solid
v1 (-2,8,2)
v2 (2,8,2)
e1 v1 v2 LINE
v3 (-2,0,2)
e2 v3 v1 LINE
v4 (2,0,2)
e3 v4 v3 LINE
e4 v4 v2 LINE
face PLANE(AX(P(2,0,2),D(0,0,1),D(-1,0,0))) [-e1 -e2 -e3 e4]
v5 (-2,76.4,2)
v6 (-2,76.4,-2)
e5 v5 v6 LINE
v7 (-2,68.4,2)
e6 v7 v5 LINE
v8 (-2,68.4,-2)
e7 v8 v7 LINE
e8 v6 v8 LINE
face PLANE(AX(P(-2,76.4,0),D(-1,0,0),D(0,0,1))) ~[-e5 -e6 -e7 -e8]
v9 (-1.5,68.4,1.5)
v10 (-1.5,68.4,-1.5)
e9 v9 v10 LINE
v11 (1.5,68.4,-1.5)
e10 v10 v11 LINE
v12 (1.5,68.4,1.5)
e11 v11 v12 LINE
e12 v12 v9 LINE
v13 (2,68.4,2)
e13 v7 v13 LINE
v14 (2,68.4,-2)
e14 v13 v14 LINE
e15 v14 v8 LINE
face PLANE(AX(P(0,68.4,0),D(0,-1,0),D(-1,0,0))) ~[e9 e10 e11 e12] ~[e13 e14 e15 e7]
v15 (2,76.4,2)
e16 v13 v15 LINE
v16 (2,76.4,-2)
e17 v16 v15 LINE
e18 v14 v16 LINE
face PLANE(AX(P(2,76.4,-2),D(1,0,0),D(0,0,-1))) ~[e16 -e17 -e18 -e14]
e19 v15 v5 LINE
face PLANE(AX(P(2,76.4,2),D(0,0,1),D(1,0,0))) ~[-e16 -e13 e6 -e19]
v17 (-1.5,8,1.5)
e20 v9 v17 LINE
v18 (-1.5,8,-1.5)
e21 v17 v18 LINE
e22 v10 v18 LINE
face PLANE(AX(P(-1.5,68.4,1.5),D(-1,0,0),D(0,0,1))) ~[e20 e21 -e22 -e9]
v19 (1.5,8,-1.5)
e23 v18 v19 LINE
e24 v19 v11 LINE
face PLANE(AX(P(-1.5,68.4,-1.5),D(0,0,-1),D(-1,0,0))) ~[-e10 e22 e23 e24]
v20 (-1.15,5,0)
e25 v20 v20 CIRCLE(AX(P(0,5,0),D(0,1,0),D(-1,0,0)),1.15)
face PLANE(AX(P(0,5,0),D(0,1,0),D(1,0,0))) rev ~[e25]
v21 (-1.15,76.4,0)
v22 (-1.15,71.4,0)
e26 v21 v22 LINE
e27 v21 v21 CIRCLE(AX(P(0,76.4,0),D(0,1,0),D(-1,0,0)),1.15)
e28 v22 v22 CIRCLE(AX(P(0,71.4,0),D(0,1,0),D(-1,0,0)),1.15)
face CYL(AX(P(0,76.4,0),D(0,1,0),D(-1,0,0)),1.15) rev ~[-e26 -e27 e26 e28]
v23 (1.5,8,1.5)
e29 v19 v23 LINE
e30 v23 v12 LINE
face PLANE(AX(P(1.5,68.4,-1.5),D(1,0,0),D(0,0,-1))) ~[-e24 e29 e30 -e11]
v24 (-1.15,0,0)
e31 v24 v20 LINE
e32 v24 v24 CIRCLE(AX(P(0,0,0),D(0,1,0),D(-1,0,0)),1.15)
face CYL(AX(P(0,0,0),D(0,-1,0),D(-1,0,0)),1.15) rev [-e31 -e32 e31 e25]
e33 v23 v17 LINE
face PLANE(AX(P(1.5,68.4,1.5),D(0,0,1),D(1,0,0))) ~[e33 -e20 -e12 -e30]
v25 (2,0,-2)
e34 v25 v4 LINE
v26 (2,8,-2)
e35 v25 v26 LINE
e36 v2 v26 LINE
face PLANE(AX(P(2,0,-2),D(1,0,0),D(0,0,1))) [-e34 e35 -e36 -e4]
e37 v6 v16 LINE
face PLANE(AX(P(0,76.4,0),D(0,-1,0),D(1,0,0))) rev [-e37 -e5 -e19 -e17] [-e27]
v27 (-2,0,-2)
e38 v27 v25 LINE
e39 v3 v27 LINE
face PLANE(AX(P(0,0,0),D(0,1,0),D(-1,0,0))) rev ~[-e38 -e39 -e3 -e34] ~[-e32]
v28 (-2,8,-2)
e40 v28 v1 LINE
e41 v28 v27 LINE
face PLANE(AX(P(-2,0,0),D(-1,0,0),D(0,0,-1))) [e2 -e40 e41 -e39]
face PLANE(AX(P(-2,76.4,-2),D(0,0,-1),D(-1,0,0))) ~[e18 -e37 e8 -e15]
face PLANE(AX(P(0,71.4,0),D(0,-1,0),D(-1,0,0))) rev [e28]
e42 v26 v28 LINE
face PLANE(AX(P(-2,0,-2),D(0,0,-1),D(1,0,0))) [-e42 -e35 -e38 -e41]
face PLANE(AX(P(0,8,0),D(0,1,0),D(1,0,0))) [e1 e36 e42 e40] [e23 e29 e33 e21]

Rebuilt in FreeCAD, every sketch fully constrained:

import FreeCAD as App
import Part
import Sketcher


def add_polygon(sketch, points):
    """Adds a closed chain of lines whose ends are joined by coincident constraints."""
    first, n = sketch.GeometryCount, len(points)
    for a, b in zip(points, points[1:] + points[:1]):
        sketch.addGeometry(Part.LineSegment(App.Vector(*a, 0), App.Vector(*b, 0)), False)
    for i in range(n):
        sketch.addConstraint(Sketcher.Constraint("Coincident", first + i, 2, first + (i + 1) % n, 1))

doc = App.newDocument("Part")
params = doc.addObject("Spreadsheet::Sheet", "Params")
for row, (alias, value) in enumerate([
    ("sketch1_diameter", "2.3 mm"),
    ("sketch1_width", "4 mm"),
    ("pad1_length", "5 mm"),
    ("sketch2_width", "4 mm"),
    ("pad2_length", "3 mm"),
    ("sketch3_width", "3 mm"),
    ("pad3_length", "44.25 mm"),
], start=1):
    params.set(f"A{row}", alias)
    params.set(f"B{row}", "=" + value)
    params.setAlias(f"B{row}", alias)

body = doc.addObject("PartDesign::Body", "Body")

sketch1 = body.newObject("Sketcher::SketchObject", "Sketch")
sketch1.AttachmentSupport = (doc.getObject("XZ_Plane"), [""])
sketch1.MapMode = "FlatFace"
add_polygon(sketch1, [(-2, -2), (-2, 2), (2, 2), (2, -2)])
sketch1.addGeometry(Part.Circle(App.Vector(0, 0, 0), App.Vector(0, 0, 1), 1.15), False)
sketch1.addConstraint(Sketcher.Constraint("Vertical", 0))
sketch1.addConstraint(Sketcher.Constraint("Horizontal", 1))
sketch1.addConstraint(Sketcher.Constraint("Vertical", 2))
sketch1.addConstraint(Sketcher.Constraint("Horizontal", 3))
sketch1.addConstraint(Sketcher.Constraint("Coincident", 4, 3, -1, 1))
sketch1.addConstraint(Sketcher.Constraint("Symmetric", 0, 2, 2, 2, -1, 1))
sketch1.addConstraint(Sketcher.Constraint("Equal", 3, 0))
sketch1.addConstraint(Sketcher.Constraint("Diameter", 4, 2.3))
sketch1.addConstraint(Sketcher.Constraint("DistanceX", 1, 1, 1, 2, 4.0))
sketch1.setExpression("Constraints[11]", "Params.sketch1_diameter")
sketch1.setExpression("Constraints[12]", "Params.sketch1_width")
pad1 = body.newObject("PartDesign::Pad", "Pad")
pad1.Profile = sketch1
pad1.setExpression("Length", "Params.pad1_length")
pad1.Reversed = True

sketch2 = body.newObject("Sketcher::SketchObject", "Sketch001")
sketch2.AttachmentSupport = (doc.getObject("XZ_Plane"), [""])
sketch2.MapMode = "FlatFace"
sketch2.AttachmentOffset = App.Placement(App.Vector(0, 0, -5), App.Rotation())
add_polygon(sketch2, [(2, 2), (2, -2), (-2, -2), (-2, 2)])
sketch2.addConstraint(Sketcher.Constraint("Vertical", 0))
sketch2.addConstraint(Sketcher.Constraint("Horizontal", 1))
sketch2.addConstraint(Sketcher.Constraint("Vertical", 2))
sketch2.addConstraint(Sketcher.Constraint("Horizontal", 3))
sketch2.addConstraint(Sketcher.Constraint("Symmetric", 0, 2, 2, 2, -1, 1))
sketch2.addConstraint(Sketcher.Constraint("Equal", 3, 0))
sketch2.addConstraint(Sketcher.Constraint("DistanceX", 1, 2, 1, 1, 4.0))
sketch2.setExpression("Constraints[10]", "Params.sketch2_width")
pad2 = body.newObject("PartDesign::Pad", "Pad001")
pad2.Profile = sketch2
pad2.setExpression("Length", "Params.pad2_length")
pad2.Reversed = True

sketch3 = body.newObject("Sketcher::SketchObject", "Sketch002")
sketch3.AttachmentSupport = (doc.getObject("XZ_Plane"), [""])
sketch3.MapMode = "FlatFace"
sketch3.AttachmentOffset = App.Placement(App.Vector(0, 0, -8), App.Rotation())
add_polygon(sketch3, [(-1.5, 1.5), (1.5, 1.5), (1.5, -1.5), (-1.5, -1.5)])
sketch3.addConstraint(Sketcher.Constraint("Horizontal", 0))
sketch3.addConstraint(Sketcher.Constraint("Vertical", 1))
sketch3.addConstraint(Sketcher.Constraint("Horizontal", 2))
sketch3.addConstraint(Sketcher.Constraint("Vertical", 3))
sketch3.addConstraint(Sketcher.Constraint("Symmetric", 0, 2, 2, 2, -1, 1))
sketch3.addConstraint(Sketcher.Constraint("Equal", 2, 1))
sketch3.addConstraint(Sketcher.Constraint("DistanceX", 0, 1, 0, 2, 3.0))
sketch3.setExpression("Constraints[10]", "Params.sketch3_width")
pad3 = body.newObject("PartDesign::Pad", "Pad002")
pad3.Profile = sketch3
pad3.setExpression("Length", "Params.pad3_length")
pad3.Reversed = True
doc.recompute()

datumplane = body.newObject("PartDesign::Plane", "DatumPlane")
datumplane.AttachmentSupport = (doc.getObject("XZ_Plane"), [""])
datumplane.MapMode = "FlatFace"
datumplane.AttachmentOffset = App.Placement(App.Vector(0, 0, -38.2), App.Rotation())
mirrored = body.newObject("PartDesign::Mirrored", "Mirrored")
mirrored.Originals = [pad3, pad1, pad2]
mirrored.MirrorPlane = (datumplane, [""])
body.Tip = mirrored

doc.recompute()
